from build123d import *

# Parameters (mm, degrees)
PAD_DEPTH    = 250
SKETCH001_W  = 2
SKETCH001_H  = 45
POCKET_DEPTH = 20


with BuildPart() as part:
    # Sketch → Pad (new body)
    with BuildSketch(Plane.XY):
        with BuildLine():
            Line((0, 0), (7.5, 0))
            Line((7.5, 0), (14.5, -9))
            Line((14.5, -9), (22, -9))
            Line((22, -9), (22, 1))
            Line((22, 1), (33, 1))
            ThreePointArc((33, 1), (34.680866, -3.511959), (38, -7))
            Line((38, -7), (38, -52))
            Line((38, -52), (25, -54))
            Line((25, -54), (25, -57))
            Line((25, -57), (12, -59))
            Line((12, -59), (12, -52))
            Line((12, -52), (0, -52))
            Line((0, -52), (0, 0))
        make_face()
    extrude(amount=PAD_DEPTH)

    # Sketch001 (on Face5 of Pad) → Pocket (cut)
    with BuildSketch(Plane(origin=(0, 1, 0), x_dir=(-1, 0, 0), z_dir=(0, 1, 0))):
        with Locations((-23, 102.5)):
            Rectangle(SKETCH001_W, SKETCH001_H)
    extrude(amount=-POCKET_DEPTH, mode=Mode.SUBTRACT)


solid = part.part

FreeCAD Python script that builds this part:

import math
import FreeCAD as App
import Part
import Sketcher
from FreeCAD import Vector
Q = App.Units.Quantity

doc = App.newDocument("Part")
body = doc.addObject("PartDesign::Body", "Body")

sketch1 = body.newObject("Sketcher::SketchObject", "Sketch")
sketch1.AttachmentSupport = (doc.getObject("XY_Plane"), [""])
sketch1.MapMode = "FlatFace"
sketch1.addGeometry(Part.LineSegment(Vector(7.5, 0, 0), Vector(0, 0, 0)), False)
sketch1.addGeometry(Part.LineSegment(Vector(0, 0, 0), Vector(0, -52, 0)), False)
sketch1.addGeometry(Part.LineSegment(Vector(0, -52, 0), Vector(12, -52, 0)), False)
sketch1.addGeometry(Part.LineSegment(Vector(12, -52, 0), Vector(12, -59, 0)), False)
sketch1.addGeometry(Part.LineSegment(Vector(12, -59, 0), Vector(25, -57, 0)), False)
sketch1.addGeometry(Part.LineSegment(Vector(25, -57, 0), Vector(25, -54, 0)), False)
sketch1.addGeometry(Part.LineSegment(Vector(25, -54, 0), Vector(38, -52, 0)), False)
sketch1.addGeometry(Part.LineSegment(Vector(38, -52, 0), Vector(38, -7, 0)), False)
sketch1.addGeometry(Part.ArcOfCircle(Part.Circle(Vector(44.856843, 2.848027, 0), Vector(0, 0, 1), 11.999998), math.radians(-171.141063), math.radians(-124.848171)), False)
sketch1.addGeometry(Part.LineSegment(Vector(33, 1, 0), Vector(22, 1, 0)), False)
sketch1.addGeometry(Part.LineSegment(Vector(22, 1, 0), Vector(22, -9, 0)), False)
sketch1.addGeometry(Part.LineSegment(Vector(22, -9, 0), Vector(14.5, -9, 0)), False)
sketch1.addGeometry(Part.LineSegment(Vector(14.5, -9, 0), Vector(7.5, 0, 0)), False)
sketch1.addConstraint(Sketcher.Constraint("Coincident", 0, 2, 1, 1))
sketch1.addConstraint(Sketcher.Constraint("Coincident", 1, 2, 2, 1))
sketch1.addConstraint(Sketcher.Constraint("Coincident", 2, 2, 3, 1))
sketch1.addConstraint(Sketcher.Constraint("Coincident", 3, 2, 4, 1))
sketch1.addConstraint(Sketcher.Constraint("Coincident", 4, 2, 5, 1))
sketch1.addConstraint(Sketcher.Constraint("Coincident", 5, 2, 6, 1))
sketch1.addConstraint(Sketcher.Constraint("Coincident", 6, 2, 7, 1))
sketch1.addConstraint(Sketcher.Constraint("Coincident", 7, 2, 8, 2))
sketch1.addConstraint(Sketcher.Constraint("Coincident", 8, 1, 9, 1))
sketch1.addConstraint(Sketcher.Constraint("Coincident", 9, 2, 10, 1))
sketch1.addConstraint(Sketcher.Constraint("Coincident", 10, 2, 11, 1))
sketch1.addConstraint(Sketcher.Constraint("Coincident", 11, 2, 12, 1))
sketch1.addConstraint(Sketcher.Constraint("Coincident", 12, 2, 0, 1))
sketch1.addConstraint(Sketcher.Constraint("Horizontal", 0))
sketch1.addConstraint(Sketcher.Constraint("Vertical", 1))
sketch1.addConstraint(Sketcher.Constraint("Horizontal", 2))
sketch1.addConstraint(Sketcher.Constraint("Vertical", 3))
sketch1.addConstraint(Sketcher.Constraint("Vertical", 5))
sketch1.addConstraint(Sketcher.Constraint("Vertical", 7))
sketch1.addConstraint(Sketcher.Constraint("Horizontal", 9))
sketch1.addConstraint(Sketcher.Constraint("Vertical", 10))
sketch1.addConstraint(Sketcher.Constraint("Horizontal", 11))
sketch1.addConstraint(Sketcher.Constraint("Coincident", 0, 2, -1, 1))
sketch1.addConstraint(Sketcher.Constraint("Parallel", 4, 6))
sketch1.addConstraint(Sketcher.Constraint("Horizontal", 2, 2, 6, 2))
sketch1.addConstraint(Sketcher.Constraint("Equal", 0, 11))
sketch1.addConstraint(Sketcher.Constraint("Equal", 4, 6))
sketch1.addConstraint(Sketcher.Constraint("DistanceX", 2, 1, 2, 2, Q("12 mm")))
sketch1.addConstraint(Sketcher.Constraint("DistanceX", 9, 2, 9, 1, Q("11 mm")))
sketch1.addConstraint(Sketcher.Constraint("DistanceY", 1, 2, 1, 1, Q("52 mm")))
sketch1.addConstraint(Sketcher.Constraint("DistanceY", 3, 2, 3, 1, Q("7 mm")))
sketch1.addConstraint(Sketcher.Constraint("DistanceY", 5, 1, 5, 2, Q("3 mm")))
sketch1.addConstraint(Sketcher.Constraint("DistanceY", 7, 1, 7, 2, Q("45 mm")))
sketch1.addConstraint(Sketcher.Constraint("DistanceY", 10, 2, 10, 1, Q("10 mm")))
sketch1.addConstraint(Sketcher.Constraint("DistanceX", 0, 2, 0, 1, Q("7.5 mm")))
sketch1.addConstraint(Sketcher.Constraint("DistanceX", -1, 1, 4, 2, Q("25 mm")))
sketch1.addConstraint(Sketcher.Constraint("DistanceX", -1, 1, 8, 1, Q("33 mm")))
sketch1.addConstraint(Sketcher.Constraint("DistanceY", -1, 1, 8, 1, Q("1 mm")))
sketch1.addConstraint(Sketcher.Constraint("Radius", 8, Q("11.999998 mm")))
pad1 = body.newObject("PartDesign::Pad", "Pad")
pad1.Profile = sketch1
pad1.Length = 250

sketch2 = body.newObject("Sketcher::SketchObject", "Sketch001")
sketch2.AttachmentSupport = (doc.getObject("XZ_Plane"), [""])
sketch2.MapMode = "FlatFace"
sketch2.AttachmentOffset = App.Placement(Vector(0, 0, -1), App.Rotation())
sketch2.addGeometry(Part.LineSegment(Vector(24, 125, 0), Vector(24, 80, 0)), False)
sketch2.addGeometry(Part.LineSegment(Vector(24, 80, 0), Vector(22, 80, 0)), False)
sketch2.addGeometry(Part.LineSegment(Vector(22, 80, 0), Vector(22, 125, 0)), False)
sketch2.addGeometry(Part.LineSegment(Vector(22, 125, 0), Vector(24, 125, 0)), False)
sketch2.addConstraint(Sketcher.Constraint("Coincident", 0, 2, 1, 1))
sketch2.addConstraint(Sketcher.Constraint("Coincident", 1, 2, 2, 1))
sketch2.addConstraint(Sketcher.Constraint("Coincident", 2, 2, 3, 1))
sketch2.addConstraint(Sketcher.Constraint("Coincident", 3, 2, 0, 1))
sketch2.addConstraint(Sketcher.Constraint("Vertical", 0))
sketch2.addConstraint(Sketcher.Constraint("Horizontal", 1))
sketch2.addConstraint(Sketcher.Constraint("Vertical", 2))
sketch2.addConstraint(Sketcher.Constraint("Horizontal", 3))
sketch2.addConstraint(Sketcher.Constraint("DistanceX", 1, 2, 1, 1, Q("2 mm")))
sketch2.addConstraint(Sketcher.Constraint("DistanceY", 0, 2, 0, 1, Q("45 mm")))
sketch2.addConstraint(Sketcher.Constraint("DistanceX", -1, 1, 0, 2, Q("24 mm")))
sketch2.addConstraint(Sketcher.Constraint("DistanceY", -1, 1, 0, 2, Q("80 mm")))
pocket1 = body.newObject("PartDesign::Pocket", "Pocket")
pocket1.Profile = sketch2
pocket1.Length = 20
pocket1.Reversed = True

doc.recompute()
